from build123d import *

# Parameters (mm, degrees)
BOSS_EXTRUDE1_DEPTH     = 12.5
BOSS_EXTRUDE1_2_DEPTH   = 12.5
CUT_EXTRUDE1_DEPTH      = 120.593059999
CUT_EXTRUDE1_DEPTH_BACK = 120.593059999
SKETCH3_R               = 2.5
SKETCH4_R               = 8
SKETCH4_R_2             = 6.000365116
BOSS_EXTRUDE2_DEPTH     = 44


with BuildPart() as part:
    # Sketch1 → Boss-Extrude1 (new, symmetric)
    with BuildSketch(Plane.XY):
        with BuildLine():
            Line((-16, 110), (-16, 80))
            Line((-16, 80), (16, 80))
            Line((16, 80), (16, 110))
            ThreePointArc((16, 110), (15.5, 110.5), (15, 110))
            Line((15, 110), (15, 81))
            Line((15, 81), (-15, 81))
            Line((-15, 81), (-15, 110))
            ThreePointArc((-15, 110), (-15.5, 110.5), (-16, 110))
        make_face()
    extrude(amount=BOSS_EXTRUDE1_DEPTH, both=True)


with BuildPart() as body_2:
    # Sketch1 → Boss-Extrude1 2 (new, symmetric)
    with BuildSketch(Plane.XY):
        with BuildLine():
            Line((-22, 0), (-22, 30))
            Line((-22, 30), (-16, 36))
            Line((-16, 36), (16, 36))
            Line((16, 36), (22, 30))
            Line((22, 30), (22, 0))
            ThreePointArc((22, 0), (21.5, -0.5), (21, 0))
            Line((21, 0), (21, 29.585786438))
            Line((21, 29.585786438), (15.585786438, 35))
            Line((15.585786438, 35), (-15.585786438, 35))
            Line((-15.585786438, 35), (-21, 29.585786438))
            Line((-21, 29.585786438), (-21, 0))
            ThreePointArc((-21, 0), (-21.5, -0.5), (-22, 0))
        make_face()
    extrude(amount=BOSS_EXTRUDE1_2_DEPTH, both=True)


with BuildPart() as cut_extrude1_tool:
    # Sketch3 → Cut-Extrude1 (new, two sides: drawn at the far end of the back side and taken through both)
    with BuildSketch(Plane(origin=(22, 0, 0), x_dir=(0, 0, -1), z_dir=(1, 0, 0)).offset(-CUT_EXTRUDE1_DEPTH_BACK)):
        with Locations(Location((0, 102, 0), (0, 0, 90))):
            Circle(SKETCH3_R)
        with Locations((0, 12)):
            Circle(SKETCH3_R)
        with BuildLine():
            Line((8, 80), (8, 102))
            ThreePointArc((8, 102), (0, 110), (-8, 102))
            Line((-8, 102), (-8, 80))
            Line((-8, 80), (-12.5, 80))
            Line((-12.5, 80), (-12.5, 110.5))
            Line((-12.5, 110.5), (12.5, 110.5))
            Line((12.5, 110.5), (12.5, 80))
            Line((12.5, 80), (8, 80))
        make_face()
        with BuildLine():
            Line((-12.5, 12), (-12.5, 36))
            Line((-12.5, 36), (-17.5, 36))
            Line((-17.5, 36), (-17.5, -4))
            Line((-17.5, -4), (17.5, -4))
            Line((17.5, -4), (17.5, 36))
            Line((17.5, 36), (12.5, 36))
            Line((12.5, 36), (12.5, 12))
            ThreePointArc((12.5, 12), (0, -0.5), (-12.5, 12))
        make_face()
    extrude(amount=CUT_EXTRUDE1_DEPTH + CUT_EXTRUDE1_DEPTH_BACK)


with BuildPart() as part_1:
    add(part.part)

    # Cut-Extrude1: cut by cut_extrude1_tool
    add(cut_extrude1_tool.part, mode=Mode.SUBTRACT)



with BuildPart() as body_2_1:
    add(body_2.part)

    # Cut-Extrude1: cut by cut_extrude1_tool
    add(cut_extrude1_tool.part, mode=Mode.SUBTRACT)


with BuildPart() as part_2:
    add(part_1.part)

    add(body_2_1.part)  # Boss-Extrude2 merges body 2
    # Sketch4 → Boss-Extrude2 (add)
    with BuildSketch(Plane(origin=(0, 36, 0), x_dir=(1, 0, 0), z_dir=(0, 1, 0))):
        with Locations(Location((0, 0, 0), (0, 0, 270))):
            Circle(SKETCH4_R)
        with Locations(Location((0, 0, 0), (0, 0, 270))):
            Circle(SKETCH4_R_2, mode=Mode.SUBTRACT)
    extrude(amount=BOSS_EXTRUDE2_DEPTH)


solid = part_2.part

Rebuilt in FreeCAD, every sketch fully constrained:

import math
import FreeCAD as App
import Part
import Sketcher

V = App.Vector

doc = App.newDocument("Part")
body = doc.addObject("PartDesign::Body", "Body")

sketch1 = doc.addObject("Sketcher::SketchObject", "Sketch")
body.addObject(sketch1)
sketch1.AttachmentSupport = (doc.XY_Plane, [""])
sketch1.MapMode = "FlatFace"
sketch1.addGeometry(Part.LineSegment(V(-16, 110, 0), V(-16, 80, 0)), False)
sketch1.addGeometry(Part.LineSegment(V(-16, 80, 0), V(16, 80, 0)), False)
sketch1.addGeometry(Part.LineSegment(V(16, 80, 0), V(16, 110, 0)), False)
sketch1.addGeometry(Part.ArcOfCircle(Part.Circle(V(15.5, 110, 0), V(0, 0, 1), 0.5), math.radians(0), math.radians(180)), False)
sketch1.addGeometry(Part.LineSegment(V(15, 110, 0), V(15, 81, 0)), False)
sketch1.addGeometry(Part.LineSegment(V(15, 81, 0), V(-15, 81, 0)), False)
sketch1.addGeometry(Part.LineSegment(V(-15, 81, 0), V(-15, 110, 0)), False)
sketch1.addGeometry(Part.ArcOfCircle(Part.Circle(V(-15.5, 110, 0), V(0, 0, 1), 0.5), math.radians(0), math.radians(180)), False)
sketch1.addConstraint(Sketcher.Constraint("Coincident", 0, 2, 1, 1))
sketch1.addConstraint(Sketcher.Constraint("Coincident", 1, 2, 2, 1))
sketch1.addConstraint(Sketcher.Constraint("Tangent", 2, 2, 3, 1))
sketch1.addConstraint(Sketcher.Constraint("Tangent", 3, 2, 4, 1))
sketch1.addConstraint(Sketcher.Constraint("Coincident", 4, 2, 5, 1))
sketch1.addConstraint(Sketcher.Constraint("Coincident", 5, 2, 6, 1))
sketch1.addConstraint(Sketcher.Constraint("Tangent", 6, 2, 7, 1))
sketch1.addConstraint(Sketcher.Constraint("Tangent", 7, 2, 0, 1))
sketch1.addConstraint(Sketcher.Constraint("Vertical", 0))
sketch1.addConstraint(Sketcher.Constraint("Horizontal", 1))
sketch1.addConstraint(Sketcher.Constraint("Vertical", 2))
sketch1.addConstraint(Sketcher.Constraint("Vertical", 4))
sketch1.addConstraint(Sketcher.Constraint("Horizontal", 5))
sketch1.addConstraint(Sketcher.Constraint("Vertical", 6))
sketch1.addConstraint(Sketcher.Constraint("Equal", 3, 7))
sketch1.addConstraint(Sketcher.Constraint("Symmetric", 3, 3, 7, 3, -2))
sketch1.addConstraint(Sketcher.Constraint("Equal", 5, 0))
sketch1.addConstraint(Sketcher.Constraint("Radius", 3, 0.5))
sketch1.addConstraint(Sketcher.Constraint("DistanceX", 1, 1, 1, 2, 32.0))
sketch1.addConstraint(Sketcher.Constraint("DistanceY", 4, 2, 4, 1, 29.0))
sketch1.addConstraint(Sketcher.Constraint("DistanceY", -1, 1, 3, 3, 110.0))
pad1 = doc.addObject("PartDesign::Pad", "Pad")
body.addObject(pad1)
pad1.Profile = sketch1
pad1.Length = 25
pad1.Midplane = True
body2 = doc.addObject("PartDesign::Body", "Body001")

sketch2 = doc.addObject("Sketcher::SketchObject", "Sketch001")
body2.addObject(sketch2)
sketch2.AttachmentSupport = (doc.getObject("XY_Plane001"), [""])
sketch2.MapMode = "FlatFace"
sketch2.addGeometry(Part.LineSegment(V(-22, 30, 0), V(-22, 0, 0)), False)
sketch2.addGeometry(Part.ArcOfCircle(Part.Circle(V(-21.5, 0, 0), V(0, 0, 1), 0.5), math.radians(180), math.radians(360)), False)
sketch2.addGeometry(Part.LineSegment(V(-21, 0, 0), V(-21, 29.6, 0)), False)
sketch2.addGeometry(Part.LineSegment(V(-21, 29.6, 0), V(-15.6, 35, 0)), False)
sketch2.addGeometry(Part.LineSegment(V(-15.6, 35, 0), V(15.6, 35, 0)), False)
sketch2.addGeometry(Part.LineSegment(V(15.6, 35, 0), V(21, 29.6, 0)), False)
sketch2.addGeometry(Part.LineSegment(V(21, 29.6, 0), V(21, 0, 0)), False)
sketch2.addGeometry(Part.ArcOfCircle(Part.Circle(V(21.5, 0, 0), V(0, 0, 1), 0.5), math.radians(180), math.radians(360)), False)
sketch2.addGeometry(Part.LineSegment(V(22, 0, 0), V(22, 30, 0)), False)
sketch2.addGeometry(Part.LineSegment(V(22, 30, 0), V(16, 36, 0)), False)
sketch2.addGeometry(Part.LineSegment(V(16, 36, 0), V(-16, 36, 0)), False)
sketch2.addGeometry(Part.LineSegment(V(-16, 36, 0), V(-22, 30, 0)), False)
sketch2.addConstraint(Sketcher.Constraint("Tangent", 0, 2, 1, 1))
sketch2.addConstraint(Sketcher.Constraint("Tangent", 1, 2, 2, 1))
sketch2.addConstraint(Sketcher.Constraint("Coincident", 2, 2, 3, 1))
sketch2.addConstraint(Sketcher.Constraint("Coincident", 3, 2, 4, 1))
sketch2.addConstraint(Sketcher.Constraint("Coincident", 4, 2, 5, 1))
sketch2.addConstraint(Sketcher.Constraint("Coincident", 5, 2, 6, 1))
sketch2.addConstraint(Sketcher.Constraint("Tangent", 6, 2, 7, 1))
sketch2.addConstraint(Sketcher.Constraint("Tangent", 7, 2, 8, 1))
sketch2.addConstraint(Sketcher.Constraint("Coincident", 8, 2, 9, 1))
sketch2.addConstraint(Sketcher.Constraint("Coincident", 9, 2, 10, 1))
sketch2.addConstraint(Sketcher.Constraint("Coincident", 10, 2, 11, 1))
sketch2.addConstraint(Sketcher.Constraint("Coincident", 11, 2, 0, 1))
sketch2.addConstraint(Sketcher.Constraint("Vertical", 0))
sketch2.addConstraint(Sketcher.Constraint("Vertical", 2))
sketch2.addConstraint(Sketcher.Constraint("Horizontal", 4))
sketch2.addConstraint(Sketcher.Constraint("Vertical", 6))
sketch2.addConstraint(Sketcher.Constraint("Vertical", 8))
sketch2.addConstraint(Sketcher.Constraint("Horizontal", 10))
sketch2.addConstraint(Sketcher.Constraint("Equal", 1, 7))
sketch2.addConstraint(Sketcher.Constraint("Symmetric", 1, 3, 7, 3, -1, 1))
sketch2.addConstraint(Sketcher.Constraint("PointOnObject", 1, 3, -1))
sketch2.addConstraint(Sketcher.Constraint("Perpendicular", 3, 5))
sketch2.addConstraint(Sketcher.Constraint("Parallel", 5, 9))
sketch2.addConstraint(Sketcher.Constraint("Perpendicular", 9, 11))
sketch2.addConstraint(Sketcher.Constraint("Horizontal", 2, 2, 5, 2))
sketch2.addConstraint(Sketcher.Constraint("Horizontal", 8, 2, 11, 2))
sketch2.addConstraint(Sketcher.Constraint("Equal", 3, 5))
sketch2.addConstraint(Sketcher.Constraint("Radius", 1, 0.5))
sketch2.addConstraint(Sketcher.Constraint("DistanceX", 10, 2, 10, 1, 32.0))
sketch2.addConstraint(Sketcher.Constraint("DistanceY", 0, 2, 0, 1, 30.0))
sketch2.addConstraint(Sketcher.Constraint("DistanceX", 0, 2, -1, 1, 22.0))
sketch2.addConstraint(Sketcher.Constraint("DistanceY", -1, 1, 3, 2, 35.0))
sketch2.addConstraint(Sketcher.Constraint("DistanceX", 4, 1, 4, 2, 31.171573))
pad2 = doc.addObject("PartDesign::Pad", "Pad001")
body2.addObject(pad2)
pad2.Profile = sketch2
pad2.Length = 25
pad2.Midplane = True
body3 = doc.addObject("PartDesign::Body", "Body002")
body3.AllowCompound = True

sketch3 = doc.addObject("Sketcher::SketchObject", "Sketch002")
body3.addObject(sketch3)
sketch3.AttachmentSupport = (doc.getObject("YZ_Plane002"), [""])
sketch3.MapMode = "FlatFace"
sketch3.AttachmentOffset = App.Placement(V(0, 0, 22), App.Rotation())
sketch3.addGeometry(Part.Circle(V(102, 0, 0), V(0, 0, 1), 2.5), False)
sketch3.addGeometry(Part.Circle(V(12, 0, 0), V(0, 0, 1), 2.5), False)
sketch3.addGeometry(Part.LineSegment(V(102, -8, 0), V(80, -8, 0)), False)
sketch3.addGeometry(Part.LineSegment(V(80, -8, 0), V(80, -12.5, 0)), False)
sketch3.addGeometry(Part.LineSegment(V(80, -12.5, 0), V(110.5, -12.5, 0)), False)
sketch3.addGeometry(Part.LineSegment(V(110.5, -12.5, 0), V(110.5, 12.5, 0)), False)
sketch3.addGeometry(Part.LineSegment(V(110.5, 12.5, 0), V(80, 12.5, 0)), False)
sketch3.addGeometry(Part.LineSegment(V(80, 12.5, 0), V(80, 8, 0)), False)
sketch3.addGeometry(Part.LineSegment(V(80, 8, 0), V(102, 8, 0)), False)
sketch3.addGeometry(Part.ArcOfCircle(Part.Circle(V(102, 0, 0), V(0, 0, 1), 8), math.radians(-90), math.radians(90)), False)
sketch3.addGeometry(Part.LineSegment(V(12, 12.5, 0), V(36, 12.5, 0)), False)
sketch3.addGeometry(Part.LineSegment(V(36, 12.5, 0), V(36, 17.5, 0)), False)
sketch3.addGeometry(Part.LineSegment(V(36, 17.5, 0), V(-4, 17.5, 0)), False)
sketch3.addGeometry(Part.LineSegment(V(-4, 17.5, 0), V(-4, -17.5, 0)), False)
sketch3.addGeometry(Part.LineSegment(V(-4, -17.5, 0), V(36, -17.5, 0)), False)
sketch3.addGeometry(Part.LineSegment(V(36, -17.5, 0), V(36, -12.5, 0)), False)
sketch3.addGeometry(Part.LineSegment(V(36, -12.5, 0), V(12, -12.5, 0)), False)
sketch3.addGeometry(Part.ArcOfCircle(Part.Circle(V(12, 0, 0), V(0, 0, 1), 12.5), math.radians(90), math.radians(270)), False)
sketch3.addConstraint(Sketcher.Constraint("Coincident", 2, 2, 3, 1))
sketch3.addConstraint(Sketcher.Constraint("Coincident", 3, 2, 4, 1))
sketch3.addConstraint(Sketcher.Constraint("Coincident", 4, 2, 5, 1))
sketch3.addConstraint(Sketcher.Constraint("Coincident", 5, 2, 6, 1))
sketch3.addConstraint(Sketcher.Constraint("Coincident", 6, 2, 7, 1))
sketch3.addConstraint(Sketcher.Constraint("Coincident", 7, 2, 8, 1))
sketch3.addConstraint(Sketcher.Constraint("Tangent", 8, 2, 9, 2))
sketch3.addConstraint(Sketcher.Constraint("Tangent", 9, 1, 2, 1))
sketch3.addConstraint(Sketcher.Constraint("Coincident", 10, 2, 11, 1))
sketch3.addConstraint(Sketcher.Constraint("Coincident", 11, 2, 12, 1))
sketch3.addConstraint(Sketcher.Constraint("Coincident", 12, 2, 13, 1))
sketch3.addConstraint(Sketcher.Constraint("Coincident", 13, 2, 14, 1))
sketch3.addConstraint(Sketcher.Constraint("Coincident", 14, 2, 15, 1))
sketch3.addConstraint(Sketcher.Constraint("Coincident", 15, 2, 16, 1))
sketch3.addConstraint(Sketcher.Constraint("Tangent", 16, 2, 17, 2))
sketch3.addConstraint(Sketcher.Constraint("Tangent", 17, 1, 10, 1))
sketch3.addConstraint(Sketcher.Constraint("Horizontal", 2))
sketch3.addConstraint(Sketcher.Constraint("Vertical", 3))
sketch3.addConstraint(Sketcher.Constraint("Horizontal", 4))
sketch3.addConstraint(Sketcher.Constraint("Vertical", 5))
sketch3.addConstraint(Sketcher.Constraint("Horizontal", 6))
sketch3.addConstraint(Sketcher.Constraint("Vertical", 7))
sketch3.addConstraint(Sketcher.Constraint("Horizontal", 8))
sketch3.addConstraint(Sketcher.Constraint("Horizontal", 10))
sketch3.addConstraint(Sketcher.Constraint("Vertical", 11))
sketch3.addConstraint(Sketcher.Constraint("Horizontal", 12))
sketch3.addConstraint(Sketcher.Constraint("Vertical", 13))
sketch3.addConstraint(Sketcher.Constraint("Horizontal", 14))
sketch3.addConstraint(Sketcher.Constraint("Vertical", 15))
sketch3.addConstraint(Sketcher.Constraint("Horizontal", 16))
sketch3.addConstraint(Sketcher.Constraint("Coincident", 9, 3, 0, 3))
sketch3.addConstraint(Sketcher.Constraint("Coincident", 17, 3, 1, 3))
sketch3.addConstraint(Sketcher.Constraint("Equal", 0, 1))
sketch3.addConstraint(Sketcher.Constraint("Symmetric", 3, 2, 6, 2, -1))
sketch3.addConstraint(Sketcher.Constraint("Symmetric", 11, 2, 14, 2, -1))
sketch3.addConstraint(Sketcher.Constraint("PointOnObject", 0, 3, -1))
sketch3.addConstraint(Sketcher.Constraint("PointOnObject", 1, 3, -1))
sketch3.addConstraint(Sketcher.Constraint("Horizontal", 6, 2, 10, 2))
sketch3.addConstraint(Sketcher.Constraint("Diameter", 0, 5.0))
sketch3.addConstraint(Sketcher.Constraint("Radius", 9, 8.0))
sketch3.addConstraint(Sketcher.Constraint("Radius", 17, 12.5))
sketch3.addConstraint(Sketcher.Constraint("DistanceX", 2, 2, 2, 1, 22.0))
sketch3.addConstraint(Sketcher.Constraint("DistanceX", 10, 1, 10, 2, 24.0))
sketch3.addConstraint(Sketcher.Constraint("DistanceX", 12, 2, 12, 1, 40.0))
sketch3.addConstraint(Sketcher.Constraint("DistanceY", 11, 1, 11, 2, 5.0))
sketch3.addConstraint(Sketcher.Constraint("DistanceX", 4, 1, 4, 2, 30.5))
sketch3.addConstraint(Sketcher.Constraint("DistanceX", -1, 1, 0, 3, 102.0))
sketch3.addConstraint(Sketcher.Constraint("DistanceX", -1, 1, 1, 3, 12.0))
pad3 = doc.addObject("PartDesign::Pad", "Pad002")
body3.addObject(pad3)
pad3.Profile = sketch3
pad3.Type = "TwoLengths"
pad3.Length = 120.59306
pad3.Length2 = 120.59306
doc.recompute()

body4 = doc.addObject("PartDesign::Body", "Body003")
body4.BaseFeature = body3
boolean = doc.addObject("PartDesign::Boolean", "Boolean")
body.addObject(boolean)
boolean.Type = "Cut"
boolean.addObjects([body4])
doc.recompute()

boolean2 = doc.addObject("PartDesign::Boolean", "Boolean001")
body2.addObject(boolean2)
boolean2.Type = "Cut"
boolean2.addObjects([body3])
body.AllowCompound = True
doc.recompute()

boolean3 = doc.addObject("PartDesign::Boolean", "Boolean002")
body.addObject(boolean3)
boolean3.Type = "Fuse"
boolean3.addObjects([body2])

sketch4 = doc.addObject("Sketcher::SketchObject", "Sketch003")
body.addObject(sketch4)
sketch4.AttachmentSupport = (doc.XZ_Plane, [""])
sketch4.MapMode = "FlatFace"
sketch4.AttachmentOffset = App.Placement(V(0, 0, -36), App.Rotation())
sketch4.addGeometry(Part.Circle(V(0, 0, 0), V(0, 0, 1), 8), False)
sketch4.addGeometry(Part.Circle(V(0, 0, 0), V(0, 0, 1), 6), False)
sketch4.addConstraint(Sketcher.Constraint("Coincident", 0, 3, -1, 1))
sketch4.addConstraint(Sketcher.Constraint("Coincident", 1, 3, -1, 1))
sketch4.addConstraint(Sketcher.Constraint("Diameter", 0, 16.0))
sketch4.addConstraint(Sketcher.Constraint("Diameter", 1, 12.00073))
pad4 = doc.addObject("PartDesign::Pad", "Pad003")
body.addObject(pad4)
pad4.Profile = sketch4
pad4.Length = 44
pad4.Reversed = True

doc.recompute()
